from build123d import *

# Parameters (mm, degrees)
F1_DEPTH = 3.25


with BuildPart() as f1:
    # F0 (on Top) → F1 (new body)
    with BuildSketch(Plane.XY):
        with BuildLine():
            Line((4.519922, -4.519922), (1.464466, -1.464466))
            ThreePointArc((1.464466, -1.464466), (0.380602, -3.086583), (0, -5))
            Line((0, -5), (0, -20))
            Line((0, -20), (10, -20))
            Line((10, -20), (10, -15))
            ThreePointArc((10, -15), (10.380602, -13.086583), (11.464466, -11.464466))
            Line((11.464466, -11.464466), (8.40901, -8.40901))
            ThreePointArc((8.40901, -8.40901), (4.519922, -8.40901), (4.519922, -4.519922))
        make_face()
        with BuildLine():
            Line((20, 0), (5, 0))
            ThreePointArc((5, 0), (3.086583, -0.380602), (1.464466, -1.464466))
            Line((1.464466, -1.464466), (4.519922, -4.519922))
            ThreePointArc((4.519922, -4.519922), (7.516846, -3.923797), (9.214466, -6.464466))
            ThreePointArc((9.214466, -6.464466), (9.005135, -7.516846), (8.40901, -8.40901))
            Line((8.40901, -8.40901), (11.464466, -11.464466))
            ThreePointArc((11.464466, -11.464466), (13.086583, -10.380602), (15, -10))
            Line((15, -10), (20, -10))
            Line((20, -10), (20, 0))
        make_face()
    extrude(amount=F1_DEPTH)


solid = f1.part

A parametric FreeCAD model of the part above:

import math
import FreeCAD as App
import Part
import Sketcher
Q = App.Units.Quantity

doc = App.newDocument("Part")
body = doc.addObject("PartDesign::Body", "Body")

# Sketch on XY plane
sketch1 = body.newObject("Sketcher::SketchObject", "Sketch")
sketch1.AttachmentSupport = (doc.getObject("XY_Plane"), [""])
sketch1.MapMode = "FlatFace"
sketch1.addGeometry([
    Part.ArcOfCircle(Part.Circle(App.Vector(5, -5, 0), App.Vector(0, 0, 1), 5), math.radians(135), math.radians(180)),  # 0
    Part.LineSegment(App.Vector(0, -5, 0), App.Vector(0, -20, 0)),  # 1
    Part.LineSegment(App.Vector(0, -20, 0), App.Vector(10, -20, 0)),  # 2
    Part.LineSegment(App.Vector(10, -20, 0), App.Vector(10, -15, 0)),  # 3
    Part.ArcOfCircle(Part.Circle(App.Vector(15, -15, 0), App.Vector(0, 0, 1), 5), math.radians(135), math.radians(180)),  # 4
    Part.ArcOfCircle(Part.Circle(App.Vector(15, -15, 0), App.Vector(0, 0, 1), 5), math.radians(90), math.radians(135)),  # 5
    Part.LineSegment(App.Vector(15, -10, 0), App.Vector(20, -10, 0)),  # 6
    Part.LineSegment(App.Vector(20, -10, 0), App.Vector(20, 0, 0)),  # 7
    Part.LineSegment(App.Vector(20, 0, 0), App.Vector(5, 0, 0)),  # 8
    Part.ArcOfCircle(Part.Circle(App.Vector(5, -5, 0), App.Vector(0, 0, 1), 5), math.radians(90), math.radians(135)),  # 9
    Part.ArcOfCircle(Part.Circle(App.Vector(6.5, -6.5, 0), App.Vector(0, 0, 1), 2.8), math.radians(135), math.radians(315)),  # 10
    Part.ArcOfCircle(Part.Circle(App.Vector(6.5, -6.5, 0), App.Vector(0, 0, 1), 2.8), math.radians(0), math.radians(135)),  # 11
    Part.ArcOfCircle(Part.Circle(App.Vector(6.5, -6.5, 0), App.Vector(0, 0, 1), 2.7), math.radians(-45), math.radians(0)),  # 12
], False)
sketch1.addConstraint([
    Sketcher.Constraint("Tangent", 0, 2, 1, 1),
    Sketcher.Constraint("Coincident", 1, 2, 2, 1),
    Sketcher.Constraint("Coincident", 2, 2, 3, 1),
    Sketcher.Constraint("Tangent", 3, 2, 4, 2),
    Sketcher.Constraint("Tangent", 4, 1, 5, 2),
    Sketcher.Constraint("Tangent", 5, 1, 6, 1),
    Sketcher.Constraint("Coincident", 6, 2, 7, 1),
    Sketcher.Constraint("Coincident", 7, 2, 8, 1),
    Sketcher.Constraint("Tangent", 8, 2, 9, 1),
    Sketcher.Constraint("Tangent", 9, 2, 0, 1),
    Sketcher.Constraint("Tangent", 10, 1, 11, 2),
    Sketcher.Constraint("Tangent", 11, 1, 12, 2),
    Sketcher.Constraint("Tangent", 12, 1, 10, 2),
    Sketcher.Constraint("Vertical", 1),
    Sketcher.Constraint("Horizontal", 2),
    Sketcher.Constraint("Vertical", 3),
    Sketcher.Constraint("Horizontal", 6),
    Sketcher.Constraint("Vertical", 7),
    Sketcher.Constraint("Horizontal", 8),
    Sketcher.Constraint("Equal", 0, 4),
    Sketcher.Constraint("Equal", 4, 5),
    Sketcher.Constraint("Equal", 5, 9),
    Sketcher.Constraint("PointOnObject", 0, 2, -2),
    Sketcher.Constraint("PointOnObject", 7, 2, -1),
    Sketcher.Constraint("Horizontal", 12, 3, 11, 1),
    Sketcher.Constraint("Equal", 8, 1),
    Sketcher.Constraint("Equal", 6, 3),
    Sketcher.Constraint("DistanceX", 2, 1, 2, 2, Q("10 mm")),
    Sketcher.Constraint("DistanceX", 6, 1, 6, 2, Q("5 mm")),
    Sketcher.Constraint("Radius", 10, Q("2.75 mm")),
    Sketcher.Constraint("DistanceY", 0, 3, -1, 1, Q("4.999999 mm")),
    Sketcher.Constraint("DistanceY", 4, 1, 12, 3, Q("4.999998 mm")),
    Sketcher.Constraint("DistanceX", 10, 3, 4, 1, Q("5 mm")),
    Sketcher.Constraint("DistanceX", 9, 2, 11, 3, Q("5 mm")),
    Sketcher.Constraint("DistanceX", -1, 1, 12, 3, Q("6.464469 mm")),
    Sketcher.Constraint("DistanceX", -1, 1, 12, 1, Q("8.40901 mm")),
    Sketcher.Constraint("DistanceX", -1, 1, 10, 1, Q("4.519922 mm")),
])
pad1 = body.newObject("PartDesign::Pad", "Pad")
pad1.Profile = sketch1
pad1.Length = 3.25

doc.recompute()
